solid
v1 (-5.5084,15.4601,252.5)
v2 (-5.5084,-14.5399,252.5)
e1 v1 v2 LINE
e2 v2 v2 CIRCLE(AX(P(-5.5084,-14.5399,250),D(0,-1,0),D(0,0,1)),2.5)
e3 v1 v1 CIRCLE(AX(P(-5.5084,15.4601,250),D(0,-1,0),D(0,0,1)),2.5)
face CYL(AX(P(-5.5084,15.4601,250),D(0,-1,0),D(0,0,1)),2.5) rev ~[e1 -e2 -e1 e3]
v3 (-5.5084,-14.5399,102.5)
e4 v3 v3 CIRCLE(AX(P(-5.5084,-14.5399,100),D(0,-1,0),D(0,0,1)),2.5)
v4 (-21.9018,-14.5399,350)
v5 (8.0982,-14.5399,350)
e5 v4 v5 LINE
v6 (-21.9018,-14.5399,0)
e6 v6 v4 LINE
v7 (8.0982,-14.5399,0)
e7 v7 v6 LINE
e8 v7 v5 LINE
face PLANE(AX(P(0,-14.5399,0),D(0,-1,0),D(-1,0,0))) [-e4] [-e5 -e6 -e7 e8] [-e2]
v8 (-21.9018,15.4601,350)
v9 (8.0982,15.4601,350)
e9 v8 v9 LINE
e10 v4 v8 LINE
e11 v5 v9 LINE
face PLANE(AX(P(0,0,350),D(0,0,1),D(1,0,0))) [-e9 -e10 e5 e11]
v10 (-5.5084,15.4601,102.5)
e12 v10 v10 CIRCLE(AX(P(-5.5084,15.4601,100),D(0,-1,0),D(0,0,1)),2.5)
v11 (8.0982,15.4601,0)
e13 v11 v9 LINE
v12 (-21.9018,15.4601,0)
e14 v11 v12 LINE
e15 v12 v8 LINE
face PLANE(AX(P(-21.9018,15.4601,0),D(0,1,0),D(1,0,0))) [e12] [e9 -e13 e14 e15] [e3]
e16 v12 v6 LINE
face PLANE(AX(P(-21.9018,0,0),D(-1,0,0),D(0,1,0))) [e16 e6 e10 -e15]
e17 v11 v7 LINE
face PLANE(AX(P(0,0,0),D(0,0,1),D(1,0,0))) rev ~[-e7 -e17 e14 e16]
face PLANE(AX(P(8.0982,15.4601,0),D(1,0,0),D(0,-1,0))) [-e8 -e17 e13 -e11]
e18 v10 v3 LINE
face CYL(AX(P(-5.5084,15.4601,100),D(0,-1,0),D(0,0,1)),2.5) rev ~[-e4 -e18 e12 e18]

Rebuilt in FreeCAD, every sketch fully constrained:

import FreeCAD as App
import Part
import Sketcher
from FreeCAD import Vector
Q = App.Units.Quantity

doc = App.newDocument("Part")
params = doc.addObject("Spreadsheet::Sheet", "Params")
for row, (alias, value) in enumerate([
    ("sketch1_width", "30 mm"),
    ("pad1_length", "350 mm"),
    ("sketch2_diameter", "5 mm"),
    ("hole_diameter", "5 mm"),
], start=1):
    params.set(f"A{row}", alias)
    params.set(f"B{row}", "=" + value)
    params.setAlias(f"B{row}", alias)

body = doc.addObject("PartDesign::Body", "Body")

sketch1 = doc.addObject("Sketcher::SketchObject", "Sketch")
body.addObject(sketch1)
sketch1.AttachmentSupport = (doc.XY_Plane, [""])
sketch1.MapMode = "FlatFace"
sketch1.addGeometry([
    Part.LineSegment(Vector(-21.9018, 15.4601, 0), Vector(-21.9018, -14.5399, 0)),
    Part.LineSegment(Vector(-21.9018, -14.5399, 0), Vector(8.0982, -14.5399, 0)),
    Part.LineSegment(Vector(8.0982, -14.5399, 0), Vector(8.0982, 15.4601, 0)),
    Part.LineSegment(Vector(8.0982, 15.4601, 0), Vector(-21.9018, 15.4601, 0)),
], False)
sketch1.addConstraint([
    Sketcher.Constraint("Coincident", 0, 2, 1, 1),
    Sketcher.Constraint("Coincident", 1, 2, 2, 1),
    Sketcher.Constraint("Coincident", 2, 2, 3, 1),
    Sketcher.Constraint("Coincident", 3, 2, 0, 1),
    Sketcher.Constraint("Vertical", 0),
    Sketcher.Constraint("Horizontal", 1),
    Sketcher.Constraint("Vertical", 2),
    Sketcher.Constraint("Horizontal", 3),
    Sketcher.Constraint("Equal", 3, 0),
    Sketcher.Constraint("DistanceX", 1, 1, 1, 2, Q("30 mm")),
    Sketcher.Constraint("DistanceY", 0, 2, -1, 1, Q("14.54 mm")),
    Sketcher.Constraint("DistanceX", 0, 2, -1, 1, Q("21.9018 mm")),
])
sketch1.setExpression("Constraints[9]", "Params.sketch1_width")
pad1 = doc.addObject("PartDesign::Pad", "Pad")
body.addObject(pad1)
pad1.Profile = sketch1
pad1.setExpression("Length", "Params.pad1_length")

sketch2 = doc.addObject("Sketcher::SketchObject", "Sketch001")
body.addObject(sketch2)
sketch2.AttachmentSupport = (doc.XZ_Plane, [""])
sketch2.MapMode = "FlatFace"
sketch2.AttachmentOffset = App.Placement(Vector(0, 0, -15.4601), App.Rotation())
sketch2.addGeometry([
    Part.Circle(Vector(-5.5084, 100, 0), Vector(0, 0, 1), 2.5),
    Part.Circle(Vector(-5.5084, 250, 0), Vector(0, 0, 1), 2.5),
], False)
sketch2.addConstraint([
    Sketcher.Constraint("Equal", 0, 1),
    Sketcher.Constraint("Vertical", 0, 3, 1, 3),
    Sketcher.Constraint("Diameter", 0, Q("5 mm")),
    Sketcher.Constraint("DistanceY", -1, 1, 0, 3, Q("100 mm")),
    Sketcher.Constraint("DistanceY", -1, 1, 1, 3, Q("250 mm")),
    Sketcher.Constraint("DistanceX", 0, 3, -1, 1, Q("5.5084 mm")),
])
sketch2.setExpression("Constraints[2]", "Params.sketch2_diameter")
doc.recompute()
hole = doc.addObject("PartDesign::Hole", "Hole")
body.addObject(hole)
hole.Profile = sketch2
hole.ThreadType = "None"
hole.setExpression("Diameter", "Params.hole_diameter")
hole.DepthType = "ThroughAll"
hole.Reversed = True

doc.recompute()
